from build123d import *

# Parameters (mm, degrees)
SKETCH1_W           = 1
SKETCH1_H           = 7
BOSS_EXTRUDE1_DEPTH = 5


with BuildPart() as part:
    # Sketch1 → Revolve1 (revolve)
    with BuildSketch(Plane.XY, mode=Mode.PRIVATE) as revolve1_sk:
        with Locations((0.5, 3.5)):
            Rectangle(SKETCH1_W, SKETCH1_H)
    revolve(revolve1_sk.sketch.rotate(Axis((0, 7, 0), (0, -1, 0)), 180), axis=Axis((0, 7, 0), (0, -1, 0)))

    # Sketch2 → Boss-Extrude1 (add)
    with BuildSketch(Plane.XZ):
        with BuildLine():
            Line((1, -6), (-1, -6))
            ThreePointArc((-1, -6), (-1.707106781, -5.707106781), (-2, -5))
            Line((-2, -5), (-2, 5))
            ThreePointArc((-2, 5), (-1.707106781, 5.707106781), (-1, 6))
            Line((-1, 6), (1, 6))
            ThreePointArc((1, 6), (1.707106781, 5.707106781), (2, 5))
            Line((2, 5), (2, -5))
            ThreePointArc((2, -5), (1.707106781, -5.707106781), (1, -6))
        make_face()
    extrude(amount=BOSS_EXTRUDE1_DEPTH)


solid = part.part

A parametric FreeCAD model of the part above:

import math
import FreeCAD as App
import Part
import Sketcher
Q = App.Units.Quantity


def add_polygon(sketch, points):
    """Adds a closed chain of lines whose ends are joined by coincident constraints."""
    first, n = sketch.GeometryCount, len(points)
    for a, b in zip(points, points[1:] + points[:1]):
        sketch.addGeometry(Part.LineSegment(App.Vector(*a, 0), App.Vector(*b, 0)), False)
    for i in range(n):
        sketch.addConstraint(Sketcher.Constraint("Coincident", first + i, 2, first + (i + 1) % n, 1))

doc = App.newDocument("Part")
body = doc.addObject("PartDesign::Body", "Body")

sketch1 = doc.addObject("Sketcher::SketchObject", "Sketch")
body.addObject(sketch1)
sketch1.AttachmentSupport = (doc.XY_Plane, [""])
sketch1.MapMode = "FlatFace"
add_polygon(sketch1, [(0, 7), (0, 0), (1, 0), (1, 7)])
sketch1.addConstraint([
    Sketcher.Constraint("Vertical", 0),
    Sketcher.Constraint("Horizontal", 1),
    Sketcher.Constraint("Vertical", 2),
    Sketcher.Constraint("Horizontal", 3),
    Sketcher.Constraint("Coincident", 0, 2, -1, 1),
    Sketcher.Constraint("DistanceX", 1, 1, 1, 2, Q("1 mm")),
    Sketcher.Constraint("DistanceY", 0, 2, 0, 1, Q("7 mm")),
])
revolution = doc.addObject("PartDesign::Revolution", "Revolution")
body.addObject(revolution)
revolution.Profile = sketch1
revolution.ReferenceAxis = (sketch1, ["V_Axis"])
revolution.Angle = 360

sketch2 = doc.addObject("Sketcher::SketchObject", "Sketch001")
body.addObject(sketch2)
sketch2.AttachmentSupport = (doc.XZ_Plane, [""])
sketch2.MapMode = "FlatFace"
sketch2.addGeometry([
    Part.LineSegment(App.Vector(-1, -6, 0), App.Vector(1, -6, 0)),
    Part.ArcOfCircle(Part.Circle(App.Vector(1, -5, 0), App.Vector(0, 0, 1), 1), math.radians(-90), math.radians(0)),
    Part.LineSegment(App.Vector(2, -5, 0), App.Vector(2, 5, 0)),
    Part.ArcOfCircle(Part.Circle(App.Vector(1, 5, 0), App.Vector(0, 0, 1), 1), math.radians(0), math.radians(90)),
    Part.LineSegment(App.Vector(1, 6, 0), App.Vector(-1, 6, 0)),
    Part.ArcOfCircle(Part.Circle(App.Vector(-1, 5, 0), App.Vector(0, 0, 1), 1), math.radians(90), math.radians(180)),
    Part.LineSegment(App.Vector(-2, 5, 0), App.Vector(-2, -5, 0)),
    Part.ArcOfCircle(Part.Circle(App.Vector(-1, -5, 0), App.Vector(0, 0, 1), 1), math.radians(-180), math.radians(-90)),
], False)
sketch2.addConstraint([
    Sketcher.Constraint("Tangent", 0, 2, 1, 1),
    Sketcher.Constraint("Tangent", 1, 2, 2, 1),
    Sketcher.Constraint("Tangent", 2, 2, 3, 1),
    Sketcher.Constraint("Tangent", 3, 2, 4, 1),
    Sketcher.Constraint("Tangent", 4, 2, 5, 1),
    Sketcher.Constraint("Tangent", 5, 2, 6, 1),
    Sketcher.Constraint("Tangent", 6, 2, 7, 1),
    Sketcher.Constraint("Tangent", 7, 2, 0, 1),
    Sketcher.Constraint("Horizontal", 0),
    Sketcher.Constraint("Vertical", 2),
    Sketcher.Constraint("Horizontal", 4),
    Sketcher.Constraint("Vertical", 6),
    Sketcher.Constraint("Equal", 1, 3),
    Sketcher.Constraint("Equal", 3, 5),
    Sketcher.Constraint("Equal", 5, 7),
    Sketcher.Constraint("Symmetric", 1, 3, 5, 3, -1, 1),
    Sketcher.Constraint("Radius", 1, Q("1 mm")),
    Sketcher.Constraint("DistanceX", 0, 1, 0, 2, Q("2 mm")),
    Sketcher.Constraint("DistanceY", 2, 1, 2, 2, Q("10 mm")),
])
pad1 = doc.addObject("PartDesign::Pad", "Pad")
body.addObject(pad1)
pad1.Profile = sketch2
pad1.Length = 5

doc.recompute()
